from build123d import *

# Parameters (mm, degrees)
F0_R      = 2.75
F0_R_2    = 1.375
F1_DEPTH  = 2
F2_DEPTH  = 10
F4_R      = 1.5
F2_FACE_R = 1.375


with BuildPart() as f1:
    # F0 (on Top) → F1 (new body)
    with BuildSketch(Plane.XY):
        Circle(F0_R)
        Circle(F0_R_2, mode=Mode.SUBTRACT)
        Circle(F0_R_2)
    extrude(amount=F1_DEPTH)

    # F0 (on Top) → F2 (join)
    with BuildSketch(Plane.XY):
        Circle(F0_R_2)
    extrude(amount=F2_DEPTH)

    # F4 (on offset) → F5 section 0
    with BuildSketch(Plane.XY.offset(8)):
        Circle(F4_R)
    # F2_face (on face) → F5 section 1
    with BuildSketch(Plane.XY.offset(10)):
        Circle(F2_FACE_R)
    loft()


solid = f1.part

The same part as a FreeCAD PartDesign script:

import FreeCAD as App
import Part
import Sketcher
from FreeCAD import Vector

doc = App.newDocument("Part")
body = doc.addObject("PartDesign::Body", "Body")

sketch1 = body.newObject("Sketcher::SketchObject", "Sketch")
sketch1.AttachmentSupport = (doc.getObject("XY_Plane"), [""])
sketch1.MapMode = "FlatFace"
sketch1.addGeometry(Part.Circle(Vector(0, 0, 0), Vector(0, 0, 1), 2.8), False)
sketch1.addConstraint([
    Sketcher.Constraint("Coincident", 0, 3, -1, 1),
    Sketcher.Constraint("Diameter", 0, 5.5),
])
pad1 = body.newObject("PartDesign::Pad", "Pad")
pad1.Profile = sketch1
pad1.Length = 2

sketch2 = body.newObject("Sketcher::SketchObject", "Sketch001")
sketch2.AttachmentSupport = (doc.getObject("XY_Plane"), [""])
sketch2.MapMode = "FlatFace"
sketch2.addGeometry(Part.Circle(Vector(0, 0, 0), Vector(0, 0, 1), 1.4), False)
sketch2.addConstraint([
    Sketcher.Constraint("Coincident", 0, 3, -1, 1),
    Sketcher.Constraint("Diameter", 0, 2.75),
])
pad2 = body.newObject("PartDesign::Pad", "Pad001")
pad2.Profile = sketch2
pad2.Length = 10

sketch3 = body.newObject("Sketcher::SketchObject", "Sketch002")
sketch3.AttachmentSupport = (doc.getObject("XY_Plane"), [""])
sketch3.MapMode = "FlatFace"
sketch3.AttachmentOffset = App.Placement(Vector(0, 0, 8), App.Rotation())
sketch3.addGeometry(Part.Circle(Vector(0, 0, 0), Vector(0, 0, 1), 1.5), False)
sketch3.addConstraint([
    Sketcher.Constraint("Coincident", 0, 3, -1, 1),
    Sketcher.Constraint("Diameter", 0, 3.0),
])

sketch4 = body.newObject("Sketcher::SketchObject", "Sketch003")
sketch4.AttachmentSupport = (doc.getObject("XY_Plane"), [""])
sketch4.MapMode = "FlatFace"
sketch4.AttachmentOffset = App.Placement(Vector(0, 0, 10), App.Rotation())
sketch4.addGeometry(Part.Circle(Vector(0, 0, 0), Vector(0, 0, 1), 1.4), False)
sketch4.addConstraint([
    Sketcher.Constraint("Coincident", 0, 3, -1, 1),
    Sketcher.Constraint("Diameter", 0, 2.75),
])

additiveloft = body.newObject("PartDesign::AdditiveLoft", "AdditiveLoft")
additiveloft.Profile = sketch3
additiveloft.Sections = [sketch4]

doc.recompute()
